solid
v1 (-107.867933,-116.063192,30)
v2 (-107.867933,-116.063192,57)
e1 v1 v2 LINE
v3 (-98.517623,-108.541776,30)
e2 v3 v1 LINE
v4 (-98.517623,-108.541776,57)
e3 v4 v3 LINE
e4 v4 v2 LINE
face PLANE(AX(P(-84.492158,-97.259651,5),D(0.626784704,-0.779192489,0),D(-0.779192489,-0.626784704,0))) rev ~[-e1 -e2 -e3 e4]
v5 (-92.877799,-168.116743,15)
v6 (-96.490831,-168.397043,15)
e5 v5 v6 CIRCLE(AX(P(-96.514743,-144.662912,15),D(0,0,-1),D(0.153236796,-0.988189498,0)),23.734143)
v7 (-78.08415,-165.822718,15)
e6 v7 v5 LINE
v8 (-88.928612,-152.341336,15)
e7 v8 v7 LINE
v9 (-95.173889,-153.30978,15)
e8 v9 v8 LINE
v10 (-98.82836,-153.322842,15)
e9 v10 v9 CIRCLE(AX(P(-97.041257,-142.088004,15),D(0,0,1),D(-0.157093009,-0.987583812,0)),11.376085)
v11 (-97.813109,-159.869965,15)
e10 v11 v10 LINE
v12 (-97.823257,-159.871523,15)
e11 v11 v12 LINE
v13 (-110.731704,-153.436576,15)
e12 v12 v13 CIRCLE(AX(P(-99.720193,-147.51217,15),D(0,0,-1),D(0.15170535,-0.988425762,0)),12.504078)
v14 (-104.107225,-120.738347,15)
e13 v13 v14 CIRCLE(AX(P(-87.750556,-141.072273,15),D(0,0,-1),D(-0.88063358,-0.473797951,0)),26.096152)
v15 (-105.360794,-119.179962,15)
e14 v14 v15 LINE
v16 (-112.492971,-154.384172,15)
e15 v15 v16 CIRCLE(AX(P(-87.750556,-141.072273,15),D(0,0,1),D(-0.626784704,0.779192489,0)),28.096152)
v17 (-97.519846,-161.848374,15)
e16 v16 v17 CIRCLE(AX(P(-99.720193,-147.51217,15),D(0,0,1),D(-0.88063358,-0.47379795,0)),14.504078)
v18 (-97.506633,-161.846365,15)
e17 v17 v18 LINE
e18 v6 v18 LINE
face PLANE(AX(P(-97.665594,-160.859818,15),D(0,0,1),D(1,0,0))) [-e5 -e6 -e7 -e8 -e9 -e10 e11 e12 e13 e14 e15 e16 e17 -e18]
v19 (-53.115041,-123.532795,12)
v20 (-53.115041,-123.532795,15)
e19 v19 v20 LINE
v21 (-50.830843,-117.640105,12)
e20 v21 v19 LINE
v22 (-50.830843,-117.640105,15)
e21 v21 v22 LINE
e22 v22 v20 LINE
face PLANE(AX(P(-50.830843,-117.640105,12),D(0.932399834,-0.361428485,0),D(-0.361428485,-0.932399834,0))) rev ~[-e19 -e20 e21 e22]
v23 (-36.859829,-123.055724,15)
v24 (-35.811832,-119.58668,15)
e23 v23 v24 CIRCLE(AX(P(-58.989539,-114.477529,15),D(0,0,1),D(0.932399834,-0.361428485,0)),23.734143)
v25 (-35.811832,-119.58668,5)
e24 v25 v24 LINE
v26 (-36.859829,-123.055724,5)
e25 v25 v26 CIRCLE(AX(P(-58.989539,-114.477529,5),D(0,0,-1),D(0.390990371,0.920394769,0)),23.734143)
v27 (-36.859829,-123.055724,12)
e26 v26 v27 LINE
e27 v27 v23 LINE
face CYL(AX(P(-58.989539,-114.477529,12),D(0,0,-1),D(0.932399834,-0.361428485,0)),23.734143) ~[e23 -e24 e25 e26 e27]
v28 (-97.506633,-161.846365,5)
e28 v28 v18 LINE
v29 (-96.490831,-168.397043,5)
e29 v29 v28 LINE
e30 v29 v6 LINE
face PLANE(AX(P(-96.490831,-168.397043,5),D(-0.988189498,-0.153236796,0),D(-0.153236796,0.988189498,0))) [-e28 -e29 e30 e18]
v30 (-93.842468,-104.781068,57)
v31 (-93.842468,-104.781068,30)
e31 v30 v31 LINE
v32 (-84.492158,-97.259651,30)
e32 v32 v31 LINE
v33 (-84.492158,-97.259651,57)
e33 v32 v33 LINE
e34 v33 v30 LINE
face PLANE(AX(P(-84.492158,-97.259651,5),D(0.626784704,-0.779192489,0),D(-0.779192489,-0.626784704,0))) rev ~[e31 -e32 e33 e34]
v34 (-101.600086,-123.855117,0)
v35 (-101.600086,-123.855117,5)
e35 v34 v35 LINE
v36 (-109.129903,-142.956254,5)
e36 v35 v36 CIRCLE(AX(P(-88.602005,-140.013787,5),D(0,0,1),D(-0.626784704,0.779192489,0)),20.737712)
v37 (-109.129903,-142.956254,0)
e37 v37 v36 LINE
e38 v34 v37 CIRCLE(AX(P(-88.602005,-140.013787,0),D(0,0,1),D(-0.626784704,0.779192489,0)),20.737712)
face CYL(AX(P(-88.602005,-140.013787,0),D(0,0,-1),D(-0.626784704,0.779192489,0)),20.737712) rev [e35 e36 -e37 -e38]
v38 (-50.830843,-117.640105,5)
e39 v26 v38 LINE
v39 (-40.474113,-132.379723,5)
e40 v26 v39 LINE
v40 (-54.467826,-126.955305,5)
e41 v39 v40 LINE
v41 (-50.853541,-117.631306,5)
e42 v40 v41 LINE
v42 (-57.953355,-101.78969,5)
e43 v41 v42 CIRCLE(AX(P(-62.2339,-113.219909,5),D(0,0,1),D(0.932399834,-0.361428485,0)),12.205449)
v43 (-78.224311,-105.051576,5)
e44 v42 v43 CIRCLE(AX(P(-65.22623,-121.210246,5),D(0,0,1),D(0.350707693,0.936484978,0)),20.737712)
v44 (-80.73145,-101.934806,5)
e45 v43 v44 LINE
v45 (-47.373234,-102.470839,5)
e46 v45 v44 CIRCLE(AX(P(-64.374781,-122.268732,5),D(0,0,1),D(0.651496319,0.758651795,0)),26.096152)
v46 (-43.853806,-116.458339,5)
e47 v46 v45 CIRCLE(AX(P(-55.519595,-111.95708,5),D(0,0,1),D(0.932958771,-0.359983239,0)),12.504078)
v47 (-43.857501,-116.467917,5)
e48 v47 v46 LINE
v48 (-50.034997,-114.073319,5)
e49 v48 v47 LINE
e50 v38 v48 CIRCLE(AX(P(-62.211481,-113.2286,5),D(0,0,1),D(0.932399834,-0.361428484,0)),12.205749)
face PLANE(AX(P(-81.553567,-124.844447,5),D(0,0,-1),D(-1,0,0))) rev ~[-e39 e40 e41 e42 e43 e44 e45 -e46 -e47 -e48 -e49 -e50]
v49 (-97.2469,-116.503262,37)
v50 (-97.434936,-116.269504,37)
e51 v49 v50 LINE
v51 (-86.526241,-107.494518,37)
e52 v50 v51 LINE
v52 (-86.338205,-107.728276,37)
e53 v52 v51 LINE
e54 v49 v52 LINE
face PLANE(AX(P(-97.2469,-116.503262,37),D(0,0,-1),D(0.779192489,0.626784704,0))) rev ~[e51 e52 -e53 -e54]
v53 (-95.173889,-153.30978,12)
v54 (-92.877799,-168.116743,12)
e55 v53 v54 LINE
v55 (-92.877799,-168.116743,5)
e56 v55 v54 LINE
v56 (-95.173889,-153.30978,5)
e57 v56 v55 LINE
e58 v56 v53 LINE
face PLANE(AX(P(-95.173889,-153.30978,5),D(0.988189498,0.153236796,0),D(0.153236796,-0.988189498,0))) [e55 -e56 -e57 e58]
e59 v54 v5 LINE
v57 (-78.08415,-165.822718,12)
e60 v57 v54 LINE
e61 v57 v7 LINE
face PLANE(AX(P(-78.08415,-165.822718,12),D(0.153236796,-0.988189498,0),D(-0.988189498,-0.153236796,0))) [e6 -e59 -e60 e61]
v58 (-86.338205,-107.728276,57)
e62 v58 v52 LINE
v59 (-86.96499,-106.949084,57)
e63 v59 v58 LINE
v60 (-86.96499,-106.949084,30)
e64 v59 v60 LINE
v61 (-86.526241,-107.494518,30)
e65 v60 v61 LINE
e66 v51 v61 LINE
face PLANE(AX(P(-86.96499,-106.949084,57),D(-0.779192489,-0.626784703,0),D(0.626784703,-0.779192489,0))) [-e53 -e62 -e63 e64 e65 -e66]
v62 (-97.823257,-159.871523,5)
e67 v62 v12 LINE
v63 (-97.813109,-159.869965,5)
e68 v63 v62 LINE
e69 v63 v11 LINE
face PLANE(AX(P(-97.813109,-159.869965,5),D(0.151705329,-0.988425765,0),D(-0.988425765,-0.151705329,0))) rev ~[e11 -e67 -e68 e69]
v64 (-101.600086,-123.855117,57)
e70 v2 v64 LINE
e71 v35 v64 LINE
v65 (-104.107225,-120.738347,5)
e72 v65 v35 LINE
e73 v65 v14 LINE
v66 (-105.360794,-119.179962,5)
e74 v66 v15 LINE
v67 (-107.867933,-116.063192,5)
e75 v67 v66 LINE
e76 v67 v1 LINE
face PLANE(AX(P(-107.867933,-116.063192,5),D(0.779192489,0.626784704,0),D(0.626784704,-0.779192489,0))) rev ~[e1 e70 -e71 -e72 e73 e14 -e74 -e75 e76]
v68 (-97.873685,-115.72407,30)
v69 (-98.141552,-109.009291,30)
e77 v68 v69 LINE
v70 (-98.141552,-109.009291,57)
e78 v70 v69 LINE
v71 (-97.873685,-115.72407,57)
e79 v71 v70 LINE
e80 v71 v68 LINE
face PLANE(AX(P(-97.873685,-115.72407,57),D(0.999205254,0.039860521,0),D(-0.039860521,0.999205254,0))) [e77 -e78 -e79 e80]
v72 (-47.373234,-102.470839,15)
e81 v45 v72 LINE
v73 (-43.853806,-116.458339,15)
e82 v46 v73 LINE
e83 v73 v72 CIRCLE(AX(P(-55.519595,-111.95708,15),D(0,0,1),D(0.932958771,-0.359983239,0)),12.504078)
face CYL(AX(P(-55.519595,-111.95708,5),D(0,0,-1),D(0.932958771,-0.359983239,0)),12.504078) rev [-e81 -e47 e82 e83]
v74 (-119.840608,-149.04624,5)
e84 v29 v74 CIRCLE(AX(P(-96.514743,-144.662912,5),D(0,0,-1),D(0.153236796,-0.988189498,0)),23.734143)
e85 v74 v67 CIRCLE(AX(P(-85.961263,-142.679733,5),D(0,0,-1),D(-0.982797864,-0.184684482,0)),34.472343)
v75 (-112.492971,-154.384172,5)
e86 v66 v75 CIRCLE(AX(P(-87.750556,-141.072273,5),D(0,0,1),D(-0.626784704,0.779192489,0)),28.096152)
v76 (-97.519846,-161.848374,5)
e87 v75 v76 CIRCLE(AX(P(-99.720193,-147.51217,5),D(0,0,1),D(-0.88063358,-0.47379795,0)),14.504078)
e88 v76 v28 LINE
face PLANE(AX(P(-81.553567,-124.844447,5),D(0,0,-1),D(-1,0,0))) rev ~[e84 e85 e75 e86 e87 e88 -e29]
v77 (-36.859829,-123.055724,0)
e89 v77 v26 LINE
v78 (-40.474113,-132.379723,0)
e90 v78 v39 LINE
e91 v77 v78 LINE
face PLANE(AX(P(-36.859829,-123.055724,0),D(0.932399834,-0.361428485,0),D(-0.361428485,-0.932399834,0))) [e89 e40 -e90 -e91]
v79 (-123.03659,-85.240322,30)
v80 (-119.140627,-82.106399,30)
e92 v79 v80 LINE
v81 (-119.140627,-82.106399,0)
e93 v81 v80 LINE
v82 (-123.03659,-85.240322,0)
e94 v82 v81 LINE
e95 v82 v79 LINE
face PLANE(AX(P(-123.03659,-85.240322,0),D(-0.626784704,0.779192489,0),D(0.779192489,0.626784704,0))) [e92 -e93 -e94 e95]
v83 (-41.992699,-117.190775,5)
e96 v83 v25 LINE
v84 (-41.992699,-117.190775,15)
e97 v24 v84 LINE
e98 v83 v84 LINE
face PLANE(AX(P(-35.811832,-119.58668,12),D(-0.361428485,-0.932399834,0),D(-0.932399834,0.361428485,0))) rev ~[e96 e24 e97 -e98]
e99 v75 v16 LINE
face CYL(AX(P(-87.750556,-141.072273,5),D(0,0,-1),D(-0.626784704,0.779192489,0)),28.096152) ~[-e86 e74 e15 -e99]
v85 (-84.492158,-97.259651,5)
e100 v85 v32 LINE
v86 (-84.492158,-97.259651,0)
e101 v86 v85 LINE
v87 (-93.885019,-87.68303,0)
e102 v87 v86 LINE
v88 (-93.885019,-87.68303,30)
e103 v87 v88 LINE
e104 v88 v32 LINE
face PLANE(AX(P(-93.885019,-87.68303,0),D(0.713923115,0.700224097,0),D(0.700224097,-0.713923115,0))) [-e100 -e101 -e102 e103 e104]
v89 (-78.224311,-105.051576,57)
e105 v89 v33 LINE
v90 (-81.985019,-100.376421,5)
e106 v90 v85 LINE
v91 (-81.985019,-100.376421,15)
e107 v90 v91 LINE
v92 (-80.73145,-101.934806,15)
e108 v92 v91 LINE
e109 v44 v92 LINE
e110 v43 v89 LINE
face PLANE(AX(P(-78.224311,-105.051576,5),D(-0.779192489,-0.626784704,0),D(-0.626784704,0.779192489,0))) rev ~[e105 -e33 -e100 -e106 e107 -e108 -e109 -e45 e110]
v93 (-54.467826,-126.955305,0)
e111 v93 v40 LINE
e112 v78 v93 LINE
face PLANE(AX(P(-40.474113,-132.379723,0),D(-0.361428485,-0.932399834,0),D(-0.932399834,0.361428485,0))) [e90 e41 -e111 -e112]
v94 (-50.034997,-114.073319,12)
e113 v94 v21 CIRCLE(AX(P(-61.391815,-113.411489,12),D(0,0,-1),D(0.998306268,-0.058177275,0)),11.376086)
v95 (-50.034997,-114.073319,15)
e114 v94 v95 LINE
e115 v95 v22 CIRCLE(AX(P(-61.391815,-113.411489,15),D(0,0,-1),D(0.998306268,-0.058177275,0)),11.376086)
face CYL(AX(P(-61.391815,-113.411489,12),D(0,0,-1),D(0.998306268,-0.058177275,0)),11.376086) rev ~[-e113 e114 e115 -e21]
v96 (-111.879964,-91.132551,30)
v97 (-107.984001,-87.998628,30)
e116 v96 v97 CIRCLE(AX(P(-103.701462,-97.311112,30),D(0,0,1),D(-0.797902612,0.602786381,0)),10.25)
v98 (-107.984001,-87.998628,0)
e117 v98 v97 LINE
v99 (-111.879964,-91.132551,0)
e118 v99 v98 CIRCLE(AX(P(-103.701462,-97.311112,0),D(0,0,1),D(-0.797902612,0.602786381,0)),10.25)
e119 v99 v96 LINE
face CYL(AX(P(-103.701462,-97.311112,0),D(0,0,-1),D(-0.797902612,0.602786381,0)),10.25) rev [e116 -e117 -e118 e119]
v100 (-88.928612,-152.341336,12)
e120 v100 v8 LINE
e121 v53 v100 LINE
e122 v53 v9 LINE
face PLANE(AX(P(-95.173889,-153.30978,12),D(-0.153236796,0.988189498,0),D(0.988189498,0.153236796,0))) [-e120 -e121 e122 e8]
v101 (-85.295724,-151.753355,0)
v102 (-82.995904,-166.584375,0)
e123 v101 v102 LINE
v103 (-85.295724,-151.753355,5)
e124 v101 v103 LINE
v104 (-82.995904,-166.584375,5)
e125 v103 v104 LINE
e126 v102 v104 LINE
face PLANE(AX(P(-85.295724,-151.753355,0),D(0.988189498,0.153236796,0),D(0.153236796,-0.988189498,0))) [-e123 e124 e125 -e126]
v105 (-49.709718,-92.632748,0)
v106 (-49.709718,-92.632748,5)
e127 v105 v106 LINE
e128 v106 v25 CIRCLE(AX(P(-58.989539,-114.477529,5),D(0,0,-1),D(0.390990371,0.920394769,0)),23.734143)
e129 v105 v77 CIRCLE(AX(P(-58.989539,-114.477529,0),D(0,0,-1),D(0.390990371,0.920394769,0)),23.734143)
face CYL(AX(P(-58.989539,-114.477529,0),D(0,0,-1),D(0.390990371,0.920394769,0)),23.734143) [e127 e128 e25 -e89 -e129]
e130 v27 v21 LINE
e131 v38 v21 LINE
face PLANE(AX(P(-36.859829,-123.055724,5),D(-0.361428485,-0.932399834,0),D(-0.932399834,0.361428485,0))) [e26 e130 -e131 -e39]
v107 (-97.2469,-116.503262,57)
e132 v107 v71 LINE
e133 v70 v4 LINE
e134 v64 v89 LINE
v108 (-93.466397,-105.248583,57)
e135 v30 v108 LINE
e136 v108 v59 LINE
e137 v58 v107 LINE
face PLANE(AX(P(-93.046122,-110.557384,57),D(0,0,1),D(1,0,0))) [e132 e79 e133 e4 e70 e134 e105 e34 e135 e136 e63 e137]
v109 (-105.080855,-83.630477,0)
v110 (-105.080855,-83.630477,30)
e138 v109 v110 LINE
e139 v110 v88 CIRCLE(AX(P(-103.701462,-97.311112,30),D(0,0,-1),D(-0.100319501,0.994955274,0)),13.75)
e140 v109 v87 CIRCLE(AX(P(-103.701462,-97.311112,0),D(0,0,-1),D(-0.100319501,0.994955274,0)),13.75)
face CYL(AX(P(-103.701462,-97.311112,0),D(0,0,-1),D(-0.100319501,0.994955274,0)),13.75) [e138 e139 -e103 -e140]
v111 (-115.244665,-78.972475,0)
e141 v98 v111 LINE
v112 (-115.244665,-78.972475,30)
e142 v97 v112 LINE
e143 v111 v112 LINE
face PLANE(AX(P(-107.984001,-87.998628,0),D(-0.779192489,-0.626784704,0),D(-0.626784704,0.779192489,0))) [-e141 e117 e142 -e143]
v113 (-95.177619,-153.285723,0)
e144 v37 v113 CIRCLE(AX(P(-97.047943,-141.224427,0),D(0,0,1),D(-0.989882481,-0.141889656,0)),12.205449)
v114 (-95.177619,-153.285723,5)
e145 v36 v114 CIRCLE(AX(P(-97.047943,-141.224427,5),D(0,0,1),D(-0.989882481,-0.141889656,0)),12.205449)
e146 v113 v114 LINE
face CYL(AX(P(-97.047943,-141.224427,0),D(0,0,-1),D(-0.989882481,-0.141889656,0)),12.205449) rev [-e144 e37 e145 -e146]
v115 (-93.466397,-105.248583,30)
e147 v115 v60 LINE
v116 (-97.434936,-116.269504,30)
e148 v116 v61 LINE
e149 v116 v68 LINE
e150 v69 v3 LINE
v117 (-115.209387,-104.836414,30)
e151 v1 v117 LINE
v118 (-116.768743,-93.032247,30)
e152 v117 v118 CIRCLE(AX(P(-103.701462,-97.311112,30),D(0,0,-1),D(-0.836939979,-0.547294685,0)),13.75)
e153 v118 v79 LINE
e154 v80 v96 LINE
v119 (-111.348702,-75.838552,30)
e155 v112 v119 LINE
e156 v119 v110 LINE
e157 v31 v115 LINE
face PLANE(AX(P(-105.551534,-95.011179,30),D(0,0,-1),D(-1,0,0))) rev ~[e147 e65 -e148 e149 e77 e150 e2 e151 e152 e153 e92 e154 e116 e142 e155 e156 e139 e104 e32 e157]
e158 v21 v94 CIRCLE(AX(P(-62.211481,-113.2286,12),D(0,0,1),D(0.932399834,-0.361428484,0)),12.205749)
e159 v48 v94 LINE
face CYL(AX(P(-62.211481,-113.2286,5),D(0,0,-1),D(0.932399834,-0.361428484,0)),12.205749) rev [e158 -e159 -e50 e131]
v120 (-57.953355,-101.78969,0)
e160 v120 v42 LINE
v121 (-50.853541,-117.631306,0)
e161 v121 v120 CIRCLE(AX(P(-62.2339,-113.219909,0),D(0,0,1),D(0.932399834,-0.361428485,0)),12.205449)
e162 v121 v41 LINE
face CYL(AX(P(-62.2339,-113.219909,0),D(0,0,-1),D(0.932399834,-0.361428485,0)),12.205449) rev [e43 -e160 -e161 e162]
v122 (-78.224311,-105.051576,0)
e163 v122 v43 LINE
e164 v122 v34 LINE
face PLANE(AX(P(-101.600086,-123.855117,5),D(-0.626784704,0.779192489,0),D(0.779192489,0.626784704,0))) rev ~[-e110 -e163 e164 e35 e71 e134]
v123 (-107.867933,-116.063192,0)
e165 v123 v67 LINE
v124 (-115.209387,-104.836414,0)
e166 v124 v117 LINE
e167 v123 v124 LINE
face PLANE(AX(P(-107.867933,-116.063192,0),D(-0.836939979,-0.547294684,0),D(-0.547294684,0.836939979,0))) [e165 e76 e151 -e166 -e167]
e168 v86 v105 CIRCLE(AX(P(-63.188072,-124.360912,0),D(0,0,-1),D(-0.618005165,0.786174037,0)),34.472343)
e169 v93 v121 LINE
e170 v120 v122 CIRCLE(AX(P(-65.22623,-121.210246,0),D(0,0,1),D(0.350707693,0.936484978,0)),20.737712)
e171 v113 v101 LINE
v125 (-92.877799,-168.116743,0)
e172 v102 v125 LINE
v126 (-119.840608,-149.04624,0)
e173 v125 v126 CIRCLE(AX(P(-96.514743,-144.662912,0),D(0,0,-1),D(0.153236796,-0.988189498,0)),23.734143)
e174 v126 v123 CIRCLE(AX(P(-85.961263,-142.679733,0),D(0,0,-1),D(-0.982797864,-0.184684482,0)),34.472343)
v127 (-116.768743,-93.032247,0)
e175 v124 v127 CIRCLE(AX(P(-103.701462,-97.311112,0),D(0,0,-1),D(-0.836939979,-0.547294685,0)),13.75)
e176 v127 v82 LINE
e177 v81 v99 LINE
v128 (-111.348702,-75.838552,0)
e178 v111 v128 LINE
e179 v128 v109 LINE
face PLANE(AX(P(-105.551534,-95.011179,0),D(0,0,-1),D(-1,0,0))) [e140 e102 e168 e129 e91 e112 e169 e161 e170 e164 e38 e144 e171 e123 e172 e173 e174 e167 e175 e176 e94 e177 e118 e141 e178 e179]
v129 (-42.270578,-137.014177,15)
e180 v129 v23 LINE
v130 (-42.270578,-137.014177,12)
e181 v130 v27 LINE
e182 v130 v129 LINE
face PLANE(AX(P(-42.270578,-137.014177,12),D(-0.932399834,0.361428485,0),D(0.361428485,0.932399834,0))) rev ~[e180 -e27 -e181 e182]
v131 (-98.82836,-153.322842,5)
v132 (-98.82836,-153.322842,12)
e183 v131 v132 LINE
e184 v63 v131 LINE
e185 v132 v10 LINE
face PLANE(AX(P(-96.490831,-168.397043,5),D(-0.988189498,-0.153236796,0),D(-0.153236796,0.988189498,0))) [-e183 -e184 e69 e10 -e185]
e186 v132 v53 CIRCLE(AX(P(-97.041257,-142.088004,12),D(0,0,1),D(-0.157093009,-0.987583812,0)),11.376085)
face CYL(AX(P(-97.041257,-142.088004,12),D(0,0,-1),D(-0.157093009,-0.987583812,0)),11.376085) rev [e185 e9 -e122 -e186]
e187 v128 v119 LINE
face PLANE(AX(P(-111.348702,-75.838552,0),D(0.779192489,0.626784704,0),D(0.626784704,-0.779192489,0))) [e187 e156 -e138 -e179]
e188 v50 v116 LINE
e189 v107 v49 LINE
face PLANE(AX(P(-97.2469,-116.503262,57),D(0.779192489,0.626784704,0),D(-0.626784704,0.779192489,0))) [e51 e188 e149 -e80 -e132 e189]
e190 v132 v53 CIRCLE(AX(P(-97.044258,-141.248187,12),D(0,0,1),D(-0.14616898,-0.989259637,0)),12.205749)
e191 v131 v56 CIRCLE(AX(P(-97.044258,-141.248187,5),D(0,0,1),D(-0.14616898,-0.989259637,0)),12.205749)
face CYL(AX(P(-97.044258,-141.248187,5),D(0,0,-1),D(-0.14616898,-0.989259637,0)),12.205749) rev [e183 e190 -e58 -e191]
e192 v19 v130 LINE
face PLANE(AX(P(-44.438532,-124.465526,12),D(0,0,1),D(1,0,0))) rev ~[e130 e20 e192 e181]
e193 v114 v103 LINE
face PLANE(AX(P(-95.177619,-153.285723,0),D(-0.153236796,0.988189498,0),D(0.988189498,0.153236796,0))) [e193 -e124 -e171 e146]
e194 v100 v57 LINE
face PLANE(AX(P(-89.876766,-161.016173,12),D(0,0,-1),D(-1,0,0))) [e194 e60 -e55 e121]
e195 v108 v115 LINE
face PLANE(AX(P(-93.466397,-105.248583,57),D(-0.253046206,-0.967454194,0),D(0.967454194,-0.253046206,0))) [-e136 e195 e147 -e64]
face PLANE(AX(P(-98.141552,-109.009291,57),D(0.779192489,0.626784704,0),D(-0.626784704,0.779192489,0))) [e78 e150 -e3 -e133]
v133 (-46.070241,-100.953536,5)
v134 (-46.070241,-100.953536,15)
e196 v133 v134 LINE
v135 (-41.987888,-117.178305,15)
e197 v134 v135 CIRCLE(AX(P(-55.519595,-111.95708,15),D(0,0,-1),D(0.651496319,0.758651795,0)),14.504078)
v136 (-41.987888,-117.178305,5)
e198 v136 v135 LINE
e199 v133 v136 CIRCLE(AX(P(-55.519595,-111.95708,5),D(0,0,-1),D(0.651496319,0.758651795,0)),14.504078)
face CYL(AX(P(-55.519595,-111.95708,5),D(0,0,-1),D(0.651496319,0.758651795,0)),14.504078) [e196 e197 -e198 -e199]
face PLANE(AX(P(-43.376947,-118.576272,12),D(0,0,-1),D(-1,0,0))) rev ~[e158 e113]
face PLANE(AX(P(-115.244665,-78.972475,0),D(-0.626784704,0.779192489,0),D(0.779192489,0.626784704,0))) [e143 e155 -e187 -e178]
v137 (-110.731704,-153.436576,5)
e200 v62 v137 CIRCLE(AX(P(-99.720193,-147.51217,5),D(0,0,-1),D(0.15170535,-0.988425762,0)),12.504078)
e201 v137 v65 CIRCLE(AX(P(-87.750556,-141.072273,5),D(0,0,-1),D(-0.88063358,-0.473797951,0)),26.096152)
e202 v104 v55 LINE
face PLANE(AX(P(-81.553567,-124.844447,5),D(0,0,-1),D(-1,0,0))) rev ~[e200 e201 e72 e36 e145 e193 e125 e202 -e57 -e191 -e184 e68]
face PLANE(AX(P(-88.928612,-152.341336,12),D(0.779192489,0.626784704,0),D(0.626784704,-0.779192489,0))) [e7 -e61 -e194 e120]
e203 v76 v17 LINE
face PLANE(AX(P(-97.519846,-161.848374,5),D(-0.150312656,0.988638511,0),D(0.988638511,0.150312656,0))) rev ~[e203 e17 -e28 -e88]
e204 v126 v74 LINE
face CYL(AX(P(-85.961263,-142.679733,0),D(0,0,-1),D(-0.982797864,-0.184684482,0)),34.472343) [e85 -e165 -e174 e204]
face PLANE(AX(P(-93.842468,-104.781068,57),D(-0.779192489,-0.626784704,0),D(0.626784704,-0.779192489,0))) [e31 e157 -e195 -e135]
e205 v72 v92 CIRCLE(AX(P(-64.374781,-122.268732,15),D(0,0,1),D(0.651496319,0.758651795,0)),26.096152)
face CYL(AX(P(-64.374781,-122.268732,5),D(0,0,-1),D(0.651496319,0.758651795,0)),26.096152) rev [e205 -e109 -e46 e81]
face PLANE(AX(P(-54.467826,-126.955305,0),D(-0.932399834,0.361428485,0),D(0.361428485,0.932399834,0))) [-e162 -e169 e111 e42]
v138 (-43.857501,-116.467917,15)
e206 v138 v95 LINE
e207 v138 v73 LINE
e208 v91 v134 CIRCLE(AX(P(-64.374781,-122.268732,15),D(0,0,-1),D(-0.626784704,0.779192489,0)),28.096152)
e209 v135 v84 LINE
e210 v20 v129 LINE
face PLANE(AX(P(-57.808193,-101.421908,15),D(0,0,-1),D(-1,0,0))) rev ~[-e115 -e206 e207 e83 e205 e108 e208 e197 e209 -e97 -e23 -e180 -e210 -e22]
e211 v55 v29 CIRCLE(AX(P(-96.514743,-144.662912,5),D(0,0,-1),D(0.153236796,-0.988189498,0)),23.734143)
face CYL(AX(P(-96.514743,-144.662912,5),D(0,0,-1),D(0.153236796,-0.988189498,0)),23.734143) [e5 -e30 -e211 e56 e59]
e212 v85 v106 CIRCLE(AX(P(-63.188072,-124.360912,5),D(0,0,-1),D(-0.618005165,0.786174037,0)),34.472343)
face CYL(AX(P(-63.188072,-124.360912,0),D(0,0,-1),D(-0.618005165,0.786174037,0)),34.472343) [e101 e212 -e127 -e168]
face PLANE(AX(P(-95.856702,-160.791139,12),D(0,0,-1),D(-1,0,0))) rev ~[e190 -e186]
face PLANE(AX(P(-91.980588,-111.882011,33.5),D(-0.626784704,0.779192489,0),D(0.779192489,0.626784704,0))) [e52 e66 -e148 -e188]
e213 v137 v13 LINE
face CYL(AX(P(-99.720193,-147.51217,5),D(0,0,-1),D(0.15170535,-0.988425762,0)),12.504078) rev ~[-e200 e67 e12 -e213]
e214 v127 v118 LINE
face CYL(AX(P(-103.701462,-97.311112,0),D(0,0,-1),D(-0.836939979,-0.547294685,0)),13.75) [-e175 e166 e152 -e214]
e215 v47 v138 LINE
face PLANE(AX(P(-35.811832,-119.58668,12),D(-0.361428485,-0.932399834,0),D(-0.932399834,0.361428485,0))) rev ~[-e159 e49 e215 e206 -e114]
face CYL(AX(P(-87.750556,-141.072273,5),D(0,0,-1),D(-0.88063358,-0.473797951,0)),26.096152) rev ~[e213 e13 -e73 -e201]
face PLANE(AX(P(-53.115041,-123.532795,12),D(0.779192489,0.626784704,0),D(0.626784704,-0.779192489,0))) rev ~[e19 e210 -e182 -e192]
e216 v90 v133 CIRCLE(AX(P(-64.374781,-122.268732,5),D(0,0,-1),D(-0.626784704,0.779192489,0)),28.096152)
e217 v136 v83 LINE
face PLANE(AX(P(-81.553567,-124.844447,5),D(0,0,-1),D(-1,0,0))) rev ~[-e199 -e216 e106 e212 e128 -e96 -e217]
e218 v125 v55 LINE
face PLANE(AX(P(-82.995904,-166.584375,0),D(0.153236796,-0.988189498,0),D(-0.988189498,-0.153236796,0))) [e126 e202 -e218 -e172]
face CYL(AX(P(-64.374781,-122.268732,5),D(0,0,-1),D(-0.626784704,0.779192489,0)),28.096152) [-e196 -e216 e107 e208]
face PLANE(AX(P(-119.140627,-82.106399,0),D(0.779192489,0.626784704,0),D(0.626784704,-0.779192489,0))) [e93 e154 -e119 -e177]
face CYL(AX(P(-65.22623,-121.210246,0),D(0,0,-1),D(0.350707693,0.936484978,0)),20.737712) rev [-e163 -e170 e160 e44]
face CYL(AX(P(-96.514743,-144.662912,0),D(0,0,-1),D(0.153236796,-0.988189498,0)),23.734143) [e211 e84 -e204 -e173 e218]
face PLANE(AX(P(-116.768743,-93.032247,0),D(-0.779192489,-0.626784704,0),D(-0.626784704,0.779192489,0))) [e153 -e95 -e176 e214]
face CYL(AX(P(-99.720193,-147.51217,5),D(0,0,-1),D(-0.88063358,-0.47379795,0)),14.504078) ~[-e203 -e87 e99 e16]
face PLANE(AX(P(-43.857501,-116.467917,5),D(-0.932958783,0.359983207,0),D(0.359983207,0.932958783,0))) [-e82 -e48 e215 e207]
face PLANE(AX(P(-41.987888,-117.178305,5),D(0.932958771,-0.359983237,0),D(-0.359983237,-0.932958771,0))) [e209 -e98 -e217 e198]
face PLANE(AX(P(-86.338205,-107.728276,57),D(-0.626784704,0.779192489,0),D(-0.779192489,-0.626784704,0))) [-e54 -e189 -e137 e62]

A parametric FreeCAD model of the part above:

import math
import FreeCAD as App
import Part
import Sketcher

doc = App.newDocument("Part")
params = doc.addObject("Spreadsheet::Sheet", "Params")
for row, (alias, value) in enumerate([
    ("sketch1_length", "10 mm"),
    ("sketch1_length2", "10 mm"),
    ("sketch1_length3", "30 mm"),
    ("sketch1_length4", "10 mm"),
    ("sketch1_length5", "10 mm"),
    ("pad1_length", "5 mm"),
    ("pad2_length", "7 mm"),
    ("pad3_length", "3 mm"),
    ("sketch4_length", "30 mm"),
    ("sketch4_length2", "10 mm"),
    ("pad4_length", "52 mm"),
    ("sketch5_length", "1 mm"),
    ("sketch5_length2", "14 mm"),
    ("sketch5_length3", "6 mm"),
    ("sketch5_length4", "0.6 mm"),
    ("pocket1_length", "27 mm"),
    ("sketch6_length", "2 mm"),
    ("pad5_length", "10 mm"),
    ("sketch7_radius", "13.75 mm"),
    ("sketch7_radius2", "10.25 mm"),
    ("sketch7_length", "30 mm"),
    ("sketch7_length2", "10 mm"),
    ("sketch7_length3", "5 mm"),
    ("pad6_length", "30 mm"),
    ("sketch8_width", "14 mm"),
    ("sketch8_height", "7 mm"),
    ("pad7_length", "0.3 mm"),
], start=1):
    params.set(f"A{row}", alias)
    params.set(f"B{row}", "=" + value)
    params.setAlias(f"B{row}", alias)

body = doc.addObject("PartDesign::Body", "Body")

sketch1 = body.newObject("Sketcher::SketchObject", "Sketch")
sketch1.AttachmentSupport = (doc.getObject("XY_Plane"), [""])
sketch1.MapMode = "FlatFace"
sketch1.addGeometry([
    Part.LineSegment(App.Vector(-92.877799, -168.116743, 0), App.Vector(-82.995904, -166.584375, 0)),
    Part.LineSegment(App.Vector(-82.995904, -166.584375, 0), App.Vector(-85.295724, -151.753355, 0)),
    Part.LineSegment(App.Vector(-85.295724, -151.753355, 0), App.Vector(-95.177619, -153.285723, 0)),
    Part.ArcOfCircle(Part.Circle(App.Vector(-97.047943, -141.224427, 0), App.Vector(0, 0, 1), 12.205449), math.radians(-171.842793), math.radians(-81.18545)),
    Part.ArcOfCircle(Part.Circle(App.Vector(-88.602005, -140.013787, 0), App.Vector(0, 0, 1), 20.737712), math.radians(128.8133), math.radians(188.157207)),
    Part.LineSegment(App.Vector(-101.600086, -123.855117, 0), App.Vector(-78.224311, -105.051576, 0)),
    Part.ArcOfCircle(Part.Circle(App.Vector(-65.22623, -121.210246, 0), App.Vector(0, 0, 1), 20.737712), math.radians(69.469393), math.radians(128.8133)),
    Part.ArcOfCircle(Part.Circle(App.Vector(-62.2339, -113.219909, 0), App.Vector(0, 0, 1), 12.205449), math.radians(-21.18795), math.radians(69.469393)),
    Part.LineSegment(App.Vector(-50.853541, -117.631306, 0), App.Vector(-54.467826, -126.955305, 0)),
    Part.LineSegment(App.Vector(-54.467826, -126.955305, 0), App.Vector(-40.474113, -132.379723, 0)),
    Part.LineSegment(App.Vector(-40.474113, -132.379723, 0), App.Vector(-36.859829, -123.055724, 0)),
    Part.ArcOfCircle(Part.Circle(App.Vector(-58.989539, -114.477529, 0), App.Vector(0, 0, 1), 23.734143), math.radians(-21.18795), math.radians(66.983863)),
    Part.ArcOfCircle(Part.Circle(App.Vector(-63.188072, -124.360912, 0), App.Vector(0, 0, 1), 34.472343), math.radians(66.983863), math.radians(128.170607)),
    Part.LineSegment(App.Vector(-84.492158, -97.259651, 0), App.Vector(-107.867933, -116.063192, 0)),
    Part.ArcOfCircle(Part.Circle(App.Vector(-85.961263, -142.679733, 0), App.Vector(0, 0, 1), 34.472343), math.radians(129.455993), math.radians(190.642738)),
    Part.ArcOfCircle(Part.Circle(App.Vector(-96.514743, -144.662912, 0), App.Vector(0, 0, 1), 23.734143), math.radians(-169.357262), math.radians(-81.18545)),
], False)
sketch1.addConstraint([
    Sketcher.Constraint("Coincident", 0, 2, 1, 1),
    Sketcher.Constraint("Coincident", 1, 2, 2, 1),
    Sketcher.Constraint("Coincident", 2, 2, 3, 2),
    Sketcher.Constraint("Coincident", 3, 1, 4, 2),
    Sketcher.Constraint("Coincident", 4, 1, 5, 1),
    Sketcher.Constraint("Coincident", 5, 2, 6, 2),
    Sketcher.Constraint("Coincident", 6, 1, 7, 2),
    Sketcher.Constraint("Coincident", 7, 1, 8, 1),
    Sketcher.Constraint("Coincident", 8, 2, 9, 1),
    Sketcher.Constraint("Coincident", 9, 2, 10, 1),
    Sketcher.Constraint("Coincident", 10, 2, 11, 1),
    Sketcher.Constraint("Coincident", 11, 2, 12, 1),
    Sketcher.Constraint("Coincident", 12, 2, 13, 1),
    Sketcher.Constraint("Coincident", 13, 2, 14, 1),
    Sketcher.Constraint("Coincident", 14, 2, 15, 1),
    Sketcher.Constraint("Coincident", 15, 2, 0, 1),
    Sketcher.Constraint("Distance", 0, 10.0),
    Sketcher.Constraint("Distance", 2, 10.0),
    Sketcher.Constraint("Distance", 5, 30.0),
    Sketcher.Constraint("Distance", 8, 10.0),
    Sketcher.Constraint("Distance", 10, 10.0),
    Sketcher.Constraint("Distance", 13, 30.0),
    Sketcher.Constraint("Radius", 3, 12.205449),
    Sketcher.Constraint("Radius", 7, 12.205449),
    Sketcher.Constraint("Radius", 4, 20.737712),
    Sketcher.Constraint("Radius", 6, 20.737712),
    Sketcher.Constraint("Radius", 11, 23.734143),
    Sketcher.Constraint("Radius", 12, 34.472343),
    Sketcher.Constraint("Radius", 14, 34.472343),
    Sketcher.Constraint("Radius", 15, 23.734143),
    Sketcher.Constraint("DistanceY", 15, 3, 12, 3, 20.302),
    Sketcher.Constraint("DistanceX", 11, 3, 7, 1, 8.135998),
    Sketcher.Constraint("DistanceY", 8, 2, 7, 1, 9.323998),
    Sketcher.Constraint("DistanceY", 9, 2, 10, 2, 9.323998),
    Sketcher.Constraint("DistanceX", 7, 3, -1, 1, 62.2339),
    Sketcher.Constraint("DistanceX", 15, 2, -1, 1, 92.877799),
    Sketcher.Constraint("DistanceX", 3, 3, 15, 3, 0.5332),
    Sketcher.Constraint("DistanceX", 4, 3, 0, 2, 5.606101),
    Sketcher.Constraint("DistanceX", 3, 1, 4, 3, 20.527898),
    Sketcher.Constraint("DistanceX", 6, 3, -1, 1, 65.22623),
    Sketcher.Constraint("DistanceY", 7, 3, -1, 1, 113.219909),
    Sketcher.Constraint("DistanceX", 11, 3, -1, 1, 58.989539),
    Sketcher.Constraint("DistanceY", 11, 3, -1, 1, 114.477529),
    Sketcher.Constraint("DistanceY", 15, 3, -1, 1, 144.662912),
    Sketcher.Constraint("DistanceX", 2, 2, -1, 1, 95.177619),
    Sketcher.Constraint("DistanceX", 5, 2, -1, 1, 78.224311),
    Sketcher.Constraint("DistanceY", 6, 1, -1, 1, 101.78969),
    Sketcher.Constraint("DistanceX", 10, 2, -1, 1, 36.859829),
    Sketcher.Constraint("DistanceX", 11, 2, -1, 1, 49.709718),
    Sketcher.Constraint("DistanceX", 12, 2, -1, 1, 84.492158),
    Sketcher.Constraint("DistanceX", 14, 2, -1, 1, 119.840608),
    Sketcher.Constraint("DistanceY", 14, 2, -1, 1, 149.04624),
    Sketcher.Constraint("DistanceY", 3, 3, 4, 3, 1.21064),
    Sketcher.Constraint("DistanceY", 4, 3, 6, 3, 18.803541),
    Sketcher.Constraint("DistanceX", 3, 3, 14, 3, 11.08668),
    Sketcher.Constraint("DistanceX", 14, 3, 1, 2, 0.665539),
])
sketch1.setExpression("Constraints[16]", "Params.sketch1_length")
sketch1.setExpression("Constraints[17]", "Params.sketch1_length2")
sketch1.setExpression("Constraints[18]", "Params.sketch1_length3")
sketch1.setExpression("Constraints[19]", "Params.sketch1_length4")
sketch1.setExpression("Constraints[20]", "Params.sketch1_length5")
pad1 = body.newObject("PartDesign::Pad", "Pad")
pad1.Profile = sketch1
pad1.setExpression("Length", "Params.pad1_length")

sketch2 = body.newObject("Sketcher::SketchObject", "Sketch001")
sketch2.AttachmentSupport = (doc.getObject("XY_Plane"), [""])
sketch2.MapMode = "FlatFace"
sketch2.AttachmentOffset = App.Placement(App.Vector(0, 0, 5), App.Rotation())
sketch2.addGeometry([
    Part.LineSegment(App.Vector(-50.8, -117.6, 0), App.Vector(-36.9, -123.1, 0)),
    Part.ArcOfCircle(Part.Circle(App.Vector(-59, -114.5, 0), App.Vector(0, 0, 1), 23.7), math.radians(-21.19), math.radians(-12.43)),
    Part.LineSegment(App.Vector(-35.8, -119.6, 0), App.Vector(-50, -114.1, 0)),
    Part.ArcOfCircle(Part.Circle(App.Vector(-62.2, -113.2, 0), App.Vector(0, 0, 1), 12.2), math.radians(-21.19), math.radians(-3.97)),
    Part.LineSegment(App.Vector(-98.8, -153.3, 0), App.Vector(-96.5, -168.4, 0)),
    Part.ArcOfCircle(Part.Circle(App.Vector(-96.5, -144.7, 0), App.Vector(0, 0, 1), 23.7), math.radians(-89.94), math.radians(-81.19)),
    Part.LineSegment(App.Vector(-92.9, -168.1, 0), App.Vector(-95.2, -153.3, 0)),
    Part.ArcOfCircle(Part.Circle(App.Vector(-97, -141.2, 0), App.Vector(0, 0, 1), 12.2), math.radians(-98.4), math.radians(-81.19)),
], False)
sketch2.addConstraint([
    Sketcher.Constraint("Coincident", 0, 2, 1, 1),
    Sketcher.Constraint("Coincident", 1, 2, 2, 1),
    Sketcher.Constraint("Coincident", 2, 2, 3, 2),
    Sketcher.Constraint("Coincident", 3, 1, 0, 1),
    Sketcher.Constraint("Coincident", 4, 2, 5, 1),
    Sketcher.Constraint("Coincident", 5, 2, 6, 1),
    Sketcher.Constraint("Coincident", 6, 2, 7, 2),
    Sketcher.Constraint("Coincident", 7, 1, 4, 1),
    Sketcher.Constraint("Equal", 1, 5),
    Sketcher.Constraint("Equal", 3, 7),
    Sketcher.Constraint("Parallel", 0, 2),
    Sketcher.Constraint("Parallel", 4, 6),
    Sketcher.Constraint("Equal", 2, 4),
    Sketcher.Constraint("Equal", 0, 6),
    Sketcher.Constraint("Radius", 3, 12.205749),
    Sketcher.Constraint("Radius", 1, 23.734143),
    Sketcher.Constraint("DistanceY", 3, 3, -1, 1, 113.2286),
    Sketcher.Constraint("DistanceX", 5, 2, -1, 1, 92.877799),
    Sketcher.Constraint("DistanceY", 4, 2, 5, 2, 0.2803),
    Sketcher.Constraint("DistanceX", 7, 1, 7, 3, 1.784102),
    Sketcher.Constraint("DistanceY", 4, 2, 7, 1, 15.074201),
    Sketcher.Constraint("Distance", 0, 14.98393),
    Sketcher.Constraint("DistanceX", 1, 3, -1, 1, 58.989539),
    Sketcher.Constraint("DistanceY", 1, 3, -1, 1, 114.477529),
    Sketcher.Constraint("DistanceY", 5, 3, -1, 1, 144.662912),
    Sketcher.Constraint("DistanceX", 0, 2, -1, 1, 36.859829),
    Sketcher.Constraint("DistanceY", 1, 2, -1, 1, 119.58668),
    Sketcher.Constraint("DistanceY", 2, 2, -1, 1, 114.073319),
])
pad2 = body.newObject("PartDesign::Pad", "Pad001")
pad2.Profile = sketch2
pad2.setExpression("Length", "Params.pad2_length")

sketch3 = body.newObject("Sketcher::SketchObject", "Sketch002")
sketch3.AttachmentSupport = (doc.getObject("XY_Plane"), [""])
sketch3.MapMode = "FlatFace"
sketch3.AttachmentOffset = App.Placement(App.Vector(0, 0, 12), App.Rotation())
sketch3.addGeometry([
    Part.LineSegment(App.Vector(-42.3, -137, 0), App.Vector(-36.9, -123.1, 0)),
    Part.ArcOfCircle(Part.Circle(App.Vector(-59, -114.5, 0), App.Vector(0, 0, 1), 23.7), math.radians(-21.19), math.radians(-12.43)),
    Part.LineSegment(App.Vector(-35.8, -119.6, 0), App.Vector(-50, -114.1, 0)),
    Part.ArcOfCircle(Part.Circle(App.Vector(-61.4, -113.4, 0), App.Vector(0, 0, 1), 11.4), math.radians(-21.82), math.radians(-3.34)),
    Part.LineSegment(App.Vector(-50.8, -117.6, 0), App.Vector(-53.1, -123.5, 0)),
    Part.LineSegment(App.Vector(-53.1, -123.5, 0), App.Vector(-42.3, -137, 0)),
    Part.LineSegment(App.Vector(-98.8, -153.3, 0), App.Vector(-96.5, -168.4, 0)),
    Part.ArcOfCircle(Part.Circle(App.Vector(-96.5, -144.7, 0), App.Vector(0, 0, 1), 23.7), math.radians(-89.94), math.radians(-81.19)),
    Part.LineSegment(App.Vector(-92.9, -168.1, 0), App.Vector(-78.1, -165.8, 0)),
    Part.LineSegment(App.Vector(-78.1, -165.8, 0), App.Vector(-88.9, -152.3, 0)),
    Part.LineSegment(App.Vector(-88.9, -152.3, 0), App.Vector(-95.2, -153.3, 0)),
    Part.ArcOfCircle(Part.Circle(App.Vector(-97, -142.1, 0), App.Vector(0, 0, 1), 11.4), math.radians(-99.04), math.radians(-80.55)),
], False)
sketch3.addConstraint([
    Sketcher.Constraint("Tangent", 0, 2, 1, 1),
    Sketcher.Constraint("Coincident", 1, 2, 2, 1),
    Sketcher.Constraint("Coincident", 2, 2, 3, 2),
    Sketcher.Constraint("Coincident", 3, 1, 4, 1),
    Sketcher.Constraint("Coincident", 4, 2, 5, 1),
    Sketcher.Constraint("Coincident", 5, 2, 0, 1),
    Sketcher.Constraint("Coincident", 6, 2, 7, 1),
    Sketcher.Constraint("Tangent", 7, 2, 8, 1),
    Sketcher.Constraint("Coincident", 8, 2, 9, 1),
    Sketcher.Constraint("Coincident", 9, 2, 10, 1),
    Sketcher.Constraint("Coincident", 10, 2, 11, 2),
    Sketcher.Constraint("Coincident", 11, 1, 6, 1),
    Sketcher.Constraint("Equal", 1, 7),
    Sketcher.Constraint("Equal", 3, 11),
    Sketcher.Constraint("Perpendicular", 0, 2),
    Sketcher.Constraint("Perpendicular", 2, 4),
    Sketcher.Constraint("Perpendicular", 6, 8),
    Sketcher.Constraint("Parallel", 5, 9),
    Sketcher.Constraint("Parallel", 8, 10),
    Sketcher.Constraint("Equal", 2, 6),
    Sketcher.Constraint("Equal", 0, 8),
    Sketcher.Constraint("Equal", 5, 9),
    Sketcher.Constraint("Equal", 4, 10),
    Sketcher.Constraint("Radius", 1, 23.734143),
    Sketcher.Constraint("Radius", 3, 11.376086),
    Sketcher.Constraint("DistanceX", 7, 2, -1, 1, 92.877799),
    Sketcher.Constraint("DistanceX", 4, 2, 3, 1, 2.284198),
    Sketcher.Constraint("DistanceX", 1, 3, 4, 2, 5.874498),
    Sketcher.Constraint("DistanceY", 6, 2, 7, 2, 0.2803),
    Sketcher.Constraint("DistanceY", 6, 2, 11, 1, 15.074201),
    Sketcher.Constraint("DistanceX", 1, 3, -1, 1, 58.989539),
    Sketcher.Constraint("DistanceY", 1, 3, -1, 1, 114.477529),
    Sketcher.Constraint("DistanceY", 3, 3, -1, 1, 113.411489),
    Sketcher.Constraint("DistanceY", 7, 3, -1, 1, 144.662912),
    Sketcher.Constraint("DistanceX", 0, 2, -1, 1, 36.859829),
    Sketcher.Constraint("DistanceY", 1, 2, -1, 1, 119.58668),
    Sketcher.Constraint("DistanceX", 5, 2, -1, 1, 42.270578),
    Sketcher.Constraint("DistanceX", 6, 2, -1, 1, 96.490831),
])
pad3 = body.newObject("PartDesign::Pad", "Pad002")
pad3.Profile = sketch3
pad3.setExpression("Length", "Params.pad3_length")

sketch4 = body.newObject("Sketcher::SketchObject", "Sketch003")
sketch4.AttachmentSupport = (doc.getObject("XY_Plane"), [""])
sketch4.MapMode = "FlatFace"
sketch4.AttachmentOffset = App.Placement(App.Vector(0, 0, 5), App.Rotation())
sketch4.addGeometry([
    Part.LineSegment(App.Vector(-102, -124, 0), App.Vector(-78, -105, 0)),
    Part.LineSegment(App.Vector(-78, -105, 0), App.Vector(-84, -97, 0)),
    Part.LineSegment(App.Vector(-84, -97, 0), App.Vector(-108, -116, 0)),
    Part.LineSegment(App.Vector(-108, -116, 0), App.Vector(-102, -124, 0)),
], False)
sketch4.addConstraint([
    Sketcher.Constraint("Coincident", 0, 2, 1, 1),
    Sketcher.Constraint("Coincident", 1, 2, 2, 1),
    Sketcher.Constraint("Coincident", 2, 2, 3, 1),
    Sketcher.Constraint("Coincident", 3, 2, 0, 1),
    Sketcher.Constraint("Perpendicular", 0, 1),
    Sketcher.Constraint("Perpendicular", 1, 2),
    Sketcher.Constraint("Perpendicular", 2, 3),
    Sketcher.Constraint("Distance", 0, 30.0),
    Sketcher.Constraint("Distance", 1, 10.0),
    Sketcher.Constraint("DistanceX", 0, 2, -1, 1, 78.224311),
    Sketcher.Constraint("DistanceX", 1, 2, -1, 1, 84.492158),
    Sketcher.Constraint("DistanceY", 1, 2, -1, 1, 97.259651),
])
sketch4.setExpression("Constraints[7]", "Params.sketch4_length")
sketch4.setExpression("Constraints[8]", "Params.sketch4_length2")
pad4 = body.newObject("PartDesign::Pad", "Pad003")
pad4.Profile = sketch4
pad4.setExpression("Length", "Params.pad4_length")

sketch5 = body.newObject("Sketcher::SketchObject", "Sketch004")
sketch5.AttachmentSupport = (doc.getObject("XY_Plane"), [""])
sketch5.MapMode = "FlatFace"
sketch5.AttachmentOffset = App.Placement(App.Vector(0, 0, 57), App.Rotation())
sketch5.addGeometry([
    Part.LineSegment(App.Vector(-97.9, -115.7, 0), App.Vector(-97.2, -116.5, 0)),
    Part.LineSegment(App.Vector(-97.2, -116.5, 0), App.Vector(-86.3, -107.7, 0)),
    Part.LineSegment(App.Vector(-86.3, -107.7, 0), App.Vector(-87, -106.9, 0)),
    Part.LineSegment(App.Vector(-87, -106.9, 0), App.Vector(-93.5, -105.2, 0)),
    Part.LineSegment(App.Vector(-93.5, -105.2, 0), App.Vector(-93.8, -104.8, 0)),
    Part.LineSegment(App.Vector(-93.8, -104.8, 0), App.Vector(-98.5, -108.5, 0)),
    Part.LineSegment(App.Vector(-98.5, -108.5, 0), App.Vector(-98.1, -109, 0)),
    Part.LineSegment(App.Vector(-98.1, -109, 0), App.Vector(-97.9, -115.7, 0)),
], False)
sketch5.addConstraint([
    Sketcher.Constraint("Coincident", 0, 2, 1, 1),
    Sketcher.Constraint("Coincident", 1, 2, 2, 1),
    Sketcher.Constraint("Coincident", 2, 2, 3, 1),
    Sketcher.Constraint("Coincident", 3, 2, 4, 1),
    Sketcher.Constraint("Coincident", 4, 2, 5, 1),
    Sketcher.Constraint("Coincident", 5, 2, 6, 1),
    Sketcher.Constraint("Coincident", 6, 2, 7, 1),
    Sketcher.Constraint("Coincident", 7, 2, 0, 1),
    Sketcher.Constraint("Perpendicular", 0, 1),
    Sketcher.Constraint("Perpendicular", 1, 2),
    Sketcher.Constraint("Parallel", 2, 4),
    Sketcher.Constraint("Perpendicular", 4, 5),
    Sketcher.Constraint("Perpendicular", 5, 6),
    Sketcher.Constraint("Equal", 0, 2),
    Sketcher.Constraint("Equal", 4, 6),
    Sketcher.Constraint("Equal", 3, 7),
    Sketcher.Constraint("Distance", 0, 1.0),
    Sketcher.Constraint("Distance", 1, 14.0),
    Sketcher.Constraint("Distance", 5, 6.0),
    Sketcher.Constraint("Distance", 4, 0.6),
    Sketcher.Constraint("DistanceY", 7, 2, 4, 2, 10.943002),
    Sketcher.Constraint("DistanceX", 0, 2, -1, 1, 97.2469),
    Sketcher.Constraint("DistanceY", 2, 2, 3, 2, 1.700501),
    Sketcher.Constraint("DistanceY", 6, 2, -1, 1, 109.009291),
])
sketch5.setExpression("Constraints[16]", "Params.sketch5_length")
sketch5.setExpression("Constraints[17]", "Params.sketch5_length2")
sketch5.setExpression("Constraints[18]", "Params.sketch5_length3")
sketch5.setExpression("Constraints[19]", "Params.sketch5_length4")
pocket1 = body.newObject("PartDesign::Pocket", "Pocket")
pocket1.Profile = sketch5
pocket1.setExpression("Length", "Params.pocket1_length")

sketch6 = body.newObject("Sketcher::SketchObject", "Sketch005")
sketch6.AttachmentSupport = (doc.getObject("XY_Plane"), [""])
sketch6.MapMode = "FlatFace"
sketch6.AttachmentOffset = App.Placement(App.Vector(0, 0, 5), App.Rotation())
sketch6.addGeometry([
    Part.LineSegment(App.Vector(-97.52, -161.848, 0), App.Vector(-97.507, -161.846, 0)),
    Part.LineSegment(App.Vector(-97.507, -161.846, 0), App.Vector(-97.813, -159.87, 0)),
    Part.LineSegment(App.Vector(-97.813, -159.87, 0), App.Vector(-97.823, -159.872, 0)),
    Part.ArcOfCircle(Part.Circle(App.Vector(-99.72, -147.512, 0), App.Vector(0, 0, 1), 12.504), math.radians(-152), math.radians(-81)),
    Part.ArcOfCircle(Part.Circle(App.Vector(-87.751, -141.072, 0), App.Vector(0, 0, 1), 26.096), math.radians(129), math.radians(208)),
    Part.LineSegment(App.Vector(-104.107, -120.738, 0), App.Vector(-105.361, -119.18, 0)),
    Part.ArcOfCircle(Part.Circle(App.Vector(-87.751, -141.072, 0), App.Vector(0, 0, 1), 28.096), math.radians(129), math.radians(208)),
    Part.ArcOfCircle(Part.Circle(App.Vector(-99.72, -147.512, 0), App.Vector(0, 0, 1), 14.504), math.radians(-152), math.radians(-81)),
    Part.ArcOfCircle(Part.Circle(App.Vector(-55.52, -111.957, 0), App.Vector(0, 0, 1), 12.504), math.radians(-21), math.radians(49)),
    Part.LineSegment(App.Vector(-43.854, -116.458, 0), App.Vector(-43.858, -116.468, 0)),
    Part.LineSegment(App.Vector(-43.858, -116.468, 0), App.Vector(-41.993, -117.191, 0)),
    Part.LineSegment(App.Vector(-41.993, -117.191, 0), App.Vector(-41.988, -117.178, 0)),
    Part.ArcOfCircle(Part.Circle(App.Vector(-55.52, -111.957, 0), App.Vector(0, 0, 1), 14.504), math.radians(-21), math.radians(49)),
    Part.ArcOfCircle(Part.Circle(App.Vector(-64.375, -122.269, 0), App.Vector(0, 0, 1), 28.096), math.radians(49), math.radians(129)),
    Part.LineSegment(App.Vector(-81.985, -100.376, 0), App.Vector(-80.731, -101.935, 0)),
    Part.ArcOfCircle(Part.Circle(App.Vector(-64.375, -122.269, 0), App.Vector(0, 0, 1), 26.096), math.radians(49), math.radians(129)),
], False)
sketch6.addConstraint([
    Sketcher.Constraint("Coincident", 0, 2, 1, 1),
    Sketcher.Constraint("Coincident", 1, 2, 2, 1),
    Sketcher.Constraint("Tangent", 2, 2, 3, 2),
    Sketcher.Constraint("Tangent", 3, 1, 4, 2),
    Sketcher.Constraint("Coincident", 4, 1, 5, 1),
    Sketcher.Constraint("Coincident", 5, 2, 6, 1),
    Sketcher.Constraint("Tangent", 6, 2, 7, 1),
    Sketcher.Constraint("Coincident", 7, 2, 0, 1),
    Sketcher.Constraint("Tangent", 8, 1, 9, 1),
    Sketcher.Constraint("Coincident", 9, 2, 10, 1),
    Sketcher.Constraint("Coincident", 10, 2, 11, 1),
    Sketcher.Constraint("Tangent", 11, 2, 12, 1),
    Sketcher.Constraint("Tangent", 12, 2, 13, 1),
    Sketcher.Constraint("Coincident", 13, 2, 14, 1),
    Sketcher.Constraint("Coincident", 14, 2, 15, 2),
    Sketcher.Constraint("Tangent", 15, 1, 8, 2),
    Sketcher.Constraint("Coincident", 6, 3, 4, 3),
    Sketcher.Constraint("Coincident", 7, 3, 3, 3),
    Sketcher.Constraint("Coincident", 12, 3, 8, 3),
    Sketcher.Constraint("Coincident", 15, 3, 13, 3),
    Sketcher.Constraint("Equal", 3, 8),
    Sketcher.Constraint("Equal", 7, 12),
    Sketcher.Constraint("Equal", 6, 13),
    Sketcher.Constraint("Parallel", 5, 14),
    Sketcher.Constraint("Equal", 2, 9),
    Sketcher.Constraint("Equal", 0, 11),
    Sketcher.Constraint("Distance", 5, 2.0),
    Sketcher.Constraint("Radius", 3, 12.504078),
    Sketcher.Constraint("Radius", 4, 26.096152),
    Sketcher.Constraint("DistanceX", 9, 2, -1, 1, 43.857501),
    Sketcher.Constraint("DistanceX", 10, 2, -1, 1, 41.992699),
    Sketcher.Constraint("DistanceY", 0, 2, 1, 2, 1.9764),
    Sketcher.Constraint("DistanceX", 2, 2, 6, 3, 10.072701),
    Sketcher.Constraint("DistanceX", 5, 2, 3, 3, 5.640602),
    Sketcher.Constraint("DistanceY", 8, 1, 15, 1, 13.9875),
    Sketcher.Constraint("Distance", 1, 2.000021),
    Sketcher.Constraint("DistanceY", 3, 3, -1, 1, 147.51217),
    Sketcher.Constraint("DistanceY", 8, 3, -1, 1, 111.95708),
    Sketcher.Constraint("DistanceX", 13, 3, -1, 1, 64.374781),
    Sketcher.Constraint("DistanceY", 13, 3, -1, 1, 122.268732),
    Sketcher.Constraint("DistanceX", 1, 2, -1, 1, 97.813109),
    Sketcher.Constraint("DistanceX", 6, 2, -1, 1, 112.492971),
    Sketcher.Constraint("DistanceX", 11, 2, -1, 1, 41.987888),
    Sketcher.Constraint("DistanceX", 13, 2, -1, 1, 81.985019),
    Sketcher.Constraint("DistanceX", 14, 2, -1, 1, 80.73145),
])
sketch6.setExpression("Constraints[26]", "Params.sketch6_length")
pad5 = body.newObject("PartDesign::Pad", "Pad004")
pad5.Profile = sketch6
pad5.setExpression("Length", "Params.pad5_length")

sketch7 = body.newObject("Sketcher::SketchObject", "Sketch006")
sketch7.AttachmentSupport = (doc.getObject("XY_Plane"), [""])
sketch7.MapMode = "FlatFace"
sketch7.addGeometry([
    Part.LineSegment(App.Vector(-93.9, -87.7, 0), App.Vector(-84.5, -97.3, 0)),
    Part.LineSegment(App.Vector(-84.5, -97.3, 0), App.Vector(-107.9, -116.1, 0)),
    Part.LineSegment(App.Vector(-107.9, -116.1, 0), App.Vector(-115.2, -104.8, 0)),
    Part.ArcOfCircle(Part.Circle(App.Vector(-103.7, -97.3, 0), App.Vector(0, 0, 1), 13.7), math.radians(162), math.radians(213)),
    Part.LineSegment(App.Vector(-116.8, -93, 0), App.Vector(-123, -85.2, 0)),
    Part.LineSegment(App.Vector(-123, -85.2, 0), App.Vector(-119.1, -82.1, 0)),
    Part.LineSegment(App.Vector(-119.1, -82.1, 0), App.Vector(-111.9, -91.1, 0)),
    Part.ArcOfCircle(Part.Circle(App.Vector(-103.7, -97.3, 0), App.Vector(0, 0, 1), 10.2), math.radians(143), math.radians(475)),
    Part.LineSegment(App.Vector(-108, -88, 0), App.Vector(-115.2, -79, 0)),
    Part.LineSegment(App.Vector(-115.2, -79, 0), App.Vector(-111.3, -75.8, 0)),
    Part.LineSegment(App.Vector(-111.3, -75.8, 0), App.Vector(-105.1, -83.6, 0)),
    Part.ArcOfCircle(Part.Circle(App.Vector(-103.7, -97.3, 0), App.Vector(0, 0, 1), 13.8), math.radians(44), math.radians(96)),
], False)
sketch7.addConstraint([
    Sketcher.Constraint("Coincident", 0, 2, 1, 1),
    Sketcher.Constraint("Coincident", 1, 2, 2, 1),
    Sketcher.Constraint("Tangent", 2, 2, 3, 2),
    Sketcher.Constraint("Coincident", 3, 1, 4, 1),
    Sketcher.Constraint("Coincident", 4, 2, 5, 1),
    Sketcher.Constraint("Coincident", 5, 2, 6, 1),
    Sketcher.Constraint("Coincident", 6, 2, 7, 1),
    Sketcher.Constraint("Coincident", 7, 2, 8, 1),
    Sketcher.Constraint("Coincident", 8, 2, 9, 1),
    Sketcher.Constraint("Coincident", 9, 2, 10, 1),
    Sketcher.Constraint("Coincident", 10, 2, 11, 2),
    Sketcher.Constraint("Tangent", 11, 1, 0, 1),
    Sketcher.Constraint("Coincident", 7, 3, 3, 3),
    Sketcher.Constraint("Coincident", 11, 3, 3, 3),
    Sketcher.Constraint("Equal", 3, 11),
    Sketcher.Constraint("Perpendicular", 1, 4),
    Sketcher.Constraint("Perpendicular", 4, 5),
    Sketcher.Constraint("Perpendicular", 5, 6),
    Sketcher.Constraint("Parallel", 6, 8),
    Sketcher.Constraint("Perpendicular", 8, 9),
    Sketcher.Constraint("Perpendicular", 9, 10),
    Sketcher.Constraint("Equal", 0, 2),
    Sketcher.Constraint("Equal", 6, 8),
    Sketcher.Constraint("Equal", 5, 9),
    Sketcher.Constraint("Equal", 4, 10),
    Sketcher.Constraint("Radius", 3, 13.75),
    Sketcher.Constraint("Radius", 7, 10.25),
    Sketcher.Constraint("Distance", 1, 30.0),
    Sketcher.Constraint("Distance", 4, 10.0),
    Sketcher.Constraint("Distance", 5, 5.0),
    Sketcher.Constraint("DistanceX", 7, 2, -1, 1, 107.984001),
    Sketcher.Constraint("DistanceY", 6, 2, 9, 2, 15.294),
    Sketcher.Constraint("DistanceY", 10, 2, 8, 2, 4.658001),
    Sketcher.Constraint("DistanceY", 5, 2, -1, 1, 82.106399),
    Sketcher.Constraint("DistanceY", 2, 2, 3, 3, 7.525302),
])
sketch7.setExpression("Constraints[25]", "Params.sketch7_radius")
sketch7.setExpression("Constraints[26]", "Params.sketch7_radius2")
sketch7.setExpression("Constraints[27]", "Params.sketch7_length")
sketch7.setExpression("Constraints[28]", "Params.sketch7_length2")
sketch7.setExpression("Constraints[29]", "Params.sketch7_length3")
pad6 = body.newObject("PartDesign::Pad", "Pad005")
pad6.Profile = sketch7
pad6.setExpression("Length", "Params.pad6_length")

sketch8 = body.newObject("Sketcher::SketchObject", "Sketch007")
sketch8.Placement = App.Placement(App.Vector(18.694228, -23.239881, 0), App.Rotation(App.Vector(0.779192489, 0.626784704, 0), App.Vector(0, 0, -1), App.Vector(-0.626784704, 0.779192489, 0), "ZXY"))
sketch8.addGeometry([
    Part.LineSegment(App.Vector(-149, -30, 0), App.Vector(-149, -37, 0)),
    Part.LineSegment(App.Vector(-149, -37, 0), App.Vector(-135, -37, 0)),
    Part.LineSegment(App.Vector(-135, -37, 0), App.Vector(-135, -30, 0)),
    Part.LineSegment(App.Vector(-135, -30, 0), App.Vector(-149, -30, 0)),
], False)
sketch8.addConstraint([
    Sketcher.Constraint("Coincident", 0, 2, 1, 1),
    Sketcher.Constraint("Coincident", 1, 2, 2, 1),
    Sketcher.Constraint("Coincident", 2, 2, 3, 1),
    Sketcher.Constraint("Coincident", 3, 2, 0, 1),
    Sketcher.Constraint("Vertical", 0),
    Sketcher.Constraint("Horizontal", 1),
    Sketcher.Constraint("Vertical", 2),
    Sketcher.Constraint("Horizontal", 3),
    Sketcher.Constraint("DistanceX", 1, 1, 1, 2, 14.0),
    Sketcher.Constraint("DistanceY", 0, 2, 0, 1, 7.0),
    Sketcher.Constraint("DistanceY", 0, 2, -1, 1, 37.0),
    Sketcher.Constraint("DistanceX", 0, 2, -1, 1, 148.796517),
])
sketch8.setExpression("Constraints[8]", "Params.sketch8_width")
sketch8.setExpression("Constraints[9]", "Params.sketch8_height")
pad7 = body.newObject("PartDesign::Pad", "Pad006")
pad7.Profile = sketch8
pad7.setExpression("Length", "Params.pad7_length")

doc.recompute()
